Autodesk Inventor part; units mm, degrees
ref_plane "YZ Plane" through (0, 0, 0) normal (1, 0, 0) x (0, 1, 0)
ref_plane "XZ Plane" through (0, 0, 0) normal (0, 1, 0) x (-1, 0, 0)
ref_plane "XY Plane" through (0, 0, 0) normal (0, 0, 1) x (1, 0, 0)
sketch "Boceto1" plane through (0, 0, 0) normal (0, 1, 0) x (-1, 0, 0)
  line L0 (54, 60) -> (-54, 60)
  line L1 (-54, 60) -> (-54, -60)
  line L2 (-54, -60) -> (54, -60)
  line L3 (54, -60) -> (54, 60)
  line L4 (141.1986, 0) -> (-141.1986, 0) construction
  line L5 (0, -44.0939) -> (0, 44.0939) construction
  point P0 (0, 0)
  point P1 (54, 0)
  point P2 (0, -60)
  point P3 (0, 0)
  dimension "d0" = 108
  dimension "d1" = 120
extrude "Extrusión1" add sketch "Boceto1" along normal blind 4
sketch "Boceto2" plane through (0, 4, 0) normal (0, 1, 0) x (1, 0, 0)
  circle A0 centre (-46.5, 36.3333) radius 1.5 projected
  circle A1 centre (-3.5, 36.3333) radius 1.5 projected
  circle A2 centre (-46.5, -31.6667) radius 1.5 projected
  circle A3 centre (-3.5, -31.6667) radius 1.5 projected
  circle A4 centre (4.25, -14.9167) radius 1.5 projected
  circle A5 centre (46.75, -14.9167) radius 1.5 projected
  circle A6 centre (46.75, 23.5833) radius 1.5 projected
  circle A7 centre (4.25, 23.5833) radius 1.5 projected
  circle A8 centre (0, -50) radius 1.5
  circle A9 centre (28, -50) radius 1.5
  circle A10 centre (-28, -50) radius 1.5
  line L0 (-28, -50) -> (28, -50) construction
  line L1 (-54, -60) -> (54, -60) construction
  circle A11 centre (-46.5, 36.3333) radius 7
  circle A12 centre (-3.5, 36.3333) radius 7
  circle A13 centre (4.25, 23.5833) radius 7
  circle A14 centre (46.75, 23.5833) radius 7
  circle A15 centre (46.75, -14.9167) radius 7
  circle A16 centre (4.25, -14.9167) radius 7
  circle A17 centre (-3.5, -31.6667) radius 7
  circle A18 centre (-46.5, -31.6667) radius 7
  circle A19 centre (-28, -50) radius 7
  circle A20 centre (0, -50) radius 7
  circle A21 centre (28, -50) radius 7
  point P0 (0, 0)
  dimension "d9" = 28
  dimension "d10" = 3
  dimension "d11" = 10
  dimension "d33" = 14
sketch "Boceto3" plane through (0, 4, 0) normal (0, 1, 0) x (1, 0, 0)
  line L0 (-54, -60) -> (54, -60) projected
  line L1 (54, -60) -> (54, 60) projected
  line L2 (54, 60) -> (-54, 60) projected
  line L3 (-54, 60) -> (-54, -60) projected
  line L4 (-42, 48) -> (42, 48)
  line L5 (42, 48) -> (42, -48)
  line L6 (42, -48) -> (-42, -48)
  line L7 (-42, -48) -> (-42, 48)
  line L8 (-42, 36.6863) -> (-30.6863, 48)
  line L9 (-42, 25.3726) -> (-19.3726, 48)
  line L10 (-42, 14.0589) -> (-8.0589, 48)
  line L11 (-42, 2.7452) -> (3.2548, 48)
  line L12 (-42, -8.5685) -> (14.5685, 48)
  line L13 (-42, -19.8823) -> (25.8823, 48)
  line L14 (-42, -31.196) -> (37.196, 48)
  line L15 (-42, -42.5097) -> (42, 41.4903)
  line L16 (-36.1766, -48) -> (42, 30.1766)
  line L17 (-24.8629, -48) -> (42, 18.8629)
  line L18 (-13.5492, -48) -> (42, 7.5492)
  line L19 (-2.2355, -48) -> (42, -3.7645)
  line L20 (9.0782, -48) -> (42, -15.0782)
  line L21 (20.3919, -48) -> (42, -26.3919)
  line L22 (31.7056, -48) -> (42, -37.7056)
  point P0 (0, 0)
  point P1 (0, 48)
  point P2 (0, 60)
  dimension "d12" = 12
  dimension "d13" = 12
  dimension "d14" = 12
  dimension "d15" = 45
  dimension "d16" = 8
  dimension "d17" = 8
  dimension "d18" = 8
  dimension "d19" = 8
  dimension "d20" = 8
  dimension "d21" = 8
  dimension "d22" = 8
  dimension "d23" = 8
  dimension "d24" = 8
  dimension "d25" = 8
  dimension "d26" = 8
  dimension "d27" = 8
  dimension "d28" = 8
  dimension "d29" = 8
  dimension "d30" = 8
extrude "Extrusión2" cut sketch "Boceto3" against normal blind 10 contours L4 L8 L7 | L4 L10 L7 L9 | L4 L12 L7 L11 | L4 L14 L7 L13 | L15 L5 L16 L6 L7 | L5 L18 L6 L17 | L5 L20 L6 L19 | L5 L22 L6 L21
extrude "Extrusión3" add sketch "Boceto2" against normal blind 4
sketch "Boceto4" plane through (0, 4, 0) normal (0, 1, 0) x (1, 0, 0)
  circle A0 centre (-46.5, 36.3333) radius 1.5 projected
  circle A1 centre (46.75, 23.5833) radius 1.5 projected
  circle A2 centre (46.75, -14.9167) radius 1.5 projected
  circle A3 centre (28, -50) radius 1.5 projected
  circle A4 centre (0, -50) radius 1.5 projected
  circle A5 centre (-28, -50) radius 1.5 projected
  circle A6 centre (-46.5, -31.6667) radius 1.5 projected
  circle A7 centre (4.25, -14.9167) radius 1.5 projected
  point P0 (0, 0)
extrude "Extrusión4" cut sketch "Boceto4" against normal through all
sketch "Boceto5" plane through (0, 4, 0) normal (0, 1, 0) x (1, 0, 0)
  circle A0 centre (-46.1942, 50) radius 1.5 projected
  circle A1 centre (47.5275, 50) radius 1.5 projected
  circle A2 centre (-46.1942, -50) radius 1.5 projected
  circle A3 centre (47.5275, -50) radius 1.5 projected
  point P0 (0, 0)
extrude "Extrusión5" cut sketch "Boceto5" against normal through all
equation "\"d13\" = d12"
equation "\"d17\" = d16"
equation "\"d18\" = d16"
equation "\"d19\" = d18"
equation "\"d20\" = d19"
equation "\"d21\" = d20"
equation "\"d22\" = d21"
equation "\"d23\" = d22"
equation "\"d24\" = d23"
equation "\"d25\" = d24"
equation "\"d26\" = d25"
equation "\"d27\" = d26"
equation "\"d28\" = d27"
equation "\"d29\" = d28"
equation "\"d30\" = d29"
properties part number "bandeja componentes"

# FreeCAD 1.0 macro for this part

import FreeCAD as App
import Part
import Sketcher
Q = App.Units.Quantity


def add_polygon(sketch, points):
    """Adds a closed chain of lines whose ends are joined by coincident constraints."""
    first, n = sketch.GeometryCount, len(points)
    for a, b in zip(points, points[1:] + points[:1]):
        sketch.addGeometry(Part.LineSegment(App.Vector(*a, 0), App.Vector(*b, 0)), False)
    for i in range(n):
        sketch.addConstraint(Sketcher.Constraint("Coincident", first + i, 2, first + (i + 1) % n, 1))

doc = App.newDocument("Part")
params = doc.addObject("Spreadsheet::Sheet", "Params")
for row, (alias, value) in enumerate([
    ("sketch1_width", "108 mm"),
    ("sketch1_height", "120 mm"),
    ("pad1_length", "4 mm"),
    ("sketch2_length", "16 mm"),
    ("sketch2_length2", "32 mm"),
    ("sketch2_length3", "64 mm"),
    ("sketch2_length4", "96 mm"),
    ("pocket1_length", "10 mm"),
    ("sketch3_diameter", "14 mm"),
    ("sketch3_diameter2", "3 mm"),
    ("pad2_length", "4 mm"),
    ("sketch4_diameter", "3 mm"),
    ("sketch5_diameter", "3 mm"),
], start=1):
    params.set(f"A{row}", alias)
    params.set(f"B{row}", "=" + value)
    params.setAlias(f"B{row}", alias)

body = doc.addObject("PartDesign::Body", "Body")

# Sketch on XZ plane
sketch1 = body.newObject("Sketcher::SketchObject", "Sketch")
sketch1.AttachmentSupport = (doc.getObject("XZ_Plane"), [""])
sketch1.MapMode = "FlatFace"
add_polygon(sketch1, [(-54, -60), (-54, 60), (54, 60), (54, -60)])  # lines 0-3
sketch1.addConstraint(Sketcher.Constraint("Vertical", 0))
sketch1.addConstraint(Sketcher.Constraint("Horizontal", 1))
sketch1.addConstraint(Sketcher.Constraint("Vertical", 2))
sketch1.addConstraint(Sketcher.Constraint("Horizontal", 3))
sketch1.addConstraint(Sketcher.Constraint("Symmetric", 0, 2, 2, 2, -1, 1))
sketch1.addConstraint(Sketcher.Constraint("DistanceX", 1, 1, 1, 2, Q("108 mm")))
sketch1.addConstraint(Sketcher.Constraint("DistanceY", 0, 1, 0, 2, Q("120 mm")))
sketch1.setExpression("Constraints[9]", "Params.sketch1_width")
sketch1.setExpression("Constraints[10]", "Params.sketch1_height")
pad1 = body.newObject("PartDesign::Pad", "Pad")
pad1.Profile = sketch1
pad1.setExpression("Length", "Params.pad1_length")
pad1.Reversed = True

# Sketch on XZ plane
sketch2 = body.newObject("Sketcher::SketchObject", "Sketch001")
sketch2.AttachmentSupport = (doc.getObject("XZ_Plane"), [""])
sketch2.MapMode = "FlatFace"
sketch2.AttachmentOffset = App.Placement(App.Vector(0, 0, -4), App.Rotation())
add_polygon(sketch2, [(-30.6863, -48), (-42, -48), (-42, -36.6863)])  # lines 0-2
add_polygon(sketch2, [(-8.0589, -48), (-19.3726, -48), (-42, -25.3726), (-42, -14.0589)])  # lines 3-6
add_polygon(sketch2, [(14.5685, -48), (3.2548, -48), (-42, -2.7452), (-42, 8.5685)])  # lines 7-10
add_polygon(sketch2, [(37.196, -48), (25.8823, -48), (-42, 19.8823), (-42, 31.196)])  # lines 11-14
add_polygon(sketch2, [(42, -41.4903), (-42, 42.5097), (-42, 48), (-36.1766, 48), (42, -30.1766)])  # lines 15-19
add_polygon(sketch2, [(42, -7.5492), (42, -18.8629), (-24.8629, 48), (-13.5492, 48)])  # lines 20-23
add_polygon(sketch2, [(42, 15.0782), (42, 3.7645), (-2.2355, 48), (9.0782, 48)])  # lines 24-27
add_polygon(sketch2, [(42, 37.7056), (42, 26.3919), (20.3919, 48), (31.7056, 48)])  # lines 28-31
sketch2.addConstraint(Sketcher.Constraint("Horizontal", 0))
sketch2.addConstraint(Sketcher.Constraint("Vertical", 1))
sketch2.addConstraint(Sketcher.Constraint("Horizontal", 3))
sketch2.addConstraint(Sketcher.Constraint("Vertical", 5))
sketch2.addConstraint(Sketcher.Constraint("Horizontal", 7))
sketch2.addConstraint(Sketcher.Constraint("Vertical", 9))
sketch2.addConstraint(Sketcher.Constraint("Horizontal", 11))
sketch2.addConstraint(Sketcher.Constraint("Vertical", 13))
sketch2.addConstraint(Sketcher.Constraint("Vertical", 16))
sketch2.addConstraint(Sketcher.Constraint("Horizontal", 17))
sketch2.addConstraint(Sketcher.Constraint("Vertical", 19))
sketch2.addConstraint(Sketcher.Constraint("Vertical", 20))
sketch2.addConstraint(Sketcher.Constraint("Horizontal", 22))
sketch2.addConstraint(Sketcher.Constraint("Vertical", 24))
sketch2.addConstraint(Sketcher.Constraint("Horizontal", 26))
sketch2.addConstraint(Sketcher.Constraint("Vertical", 28))
sketch2.addConstraint(Sketcher.Constraint("Horizontal", 30))
sketch2.addConstraint(Sketcher.Constraint("Symmetric", 0, 2, 16, 2, -1))
sketch2.addConstraint(Sketcher.Constraint("Parallel", 2, 4))
sketch2.addConstraint(Sketcher.Constraint("Parallel", 4, 6))
sketch2.addConstraint(Sketcher.Constraint("Parallel", 6, 8))
sketch2.addConstraint(Sketcher.Constraint("Parallel", 8, 10))
sketch2.addConstraint(Sketcher.Constraint("Parallel", 10, 12))
sketch2.addConstraint(Sketcher.Constraint("Parallel", 12, 14))
sketch2.addConstraint(Sketcher.Constraint("Parallel", 14, 15))
sketch2.addConstraint(Sketcher.Constraint("Parallel", 15, 18))
sketch2.addConstraint(Sketcher.Constraint("Parallel", 18, 21))
sketch2.addConstraint(Sketcher.Constraint("Parallel", 21, 23))
sketch2.addConstraint(Sketcher.Constraint("Parallel", 23, 25))
sketch2.addConstraint(Sketcher.Constraint("Parallel", 25, 27))
sketch2.addConstraint(Sketcher.Constraint("Parallel", 27, 29))
sketch2.addConstraint(Sketcher.Constraint("Parallel", 29, 31))
sketch2.addConstraint(Sketcher.Constraint("Horizontal", 2, 2, 3, 2))
sketch2.addConstraint(Sketcher.Constraint("Horizontal", 6, 2, 7, 2))
sketch2.addConstraint(Sketcher.Constraint("Horizontal", 10, 2, 11, 2))
sketch2.addConstraint(Sketcher.Constraint("Horizontal", 17, 2, 21, 2))
sketch2.addConstraint(Sketcher.Constraint("Horizontal", 22, 2, 25, 2))
sketch2.addConstraint(Sketcher.Constraint("Horizontal", 26, 2, 29, 2))
sketch2.addConstraint(Sketcher.Constraint("Vertical", 1, 2, 4, 2))
sketch2.addConstraint(Sketcher.Constraint("Vertical", 5, 2, 8, 2))
sketch2.addConstraint(Sketcher.Constraint("Vertical", 9, 2, 12, 2))
sketch2.addConstraint(Sketcher.Constraint("Vertical", 19, 2, 20, 2))
sketch2.addConstraint(Sketcher.Constraint("Vertical", 23, 2, 24, 2))
sketch2.addConstraint(Sketcher.Constraint("Vertical", 27, 2, 28, 2))
sketch2.addConstraint(Sketcher.Constraint("Equal", 0, 3))
sketch2.addConstraint(Sketcher.Constraint("Equal", 3, 7))
sketch2.addConstraint(Sketcher.Constraint("Equal", 7, 11))
sketch2.addConstraint(Sketcher.Constraint("Equal", 11, 22))
sketch2.addConstraint(Sketcher.Constraint("Equal", 22, 26))
sketch2.addConstraint(Sketcher.Constraint("Equal", 26, 30))
sketch2.addConstraint(Sketcher.Constraint("Equal", 30, 1))
sketch2.addConstraint(Sketcher.Constraint("Equal", 13, 19))
sketch2.addConstraint(Sketcher.Constraint("Distance", 2, Q("16 mm")))
sketch2.addConstraint(Sketcher.Constraint("Distance", 4, Q("32 mm")))
sketch2.addConstraint(Sketcher.Constraint("Distance", 8, Q("64 mm")))
sketch2.addConstraint(Sketcher.Constraint("Distance", 12, Q("96 mm")))
sketch2.addConstraint(Sketcher.Constraint("DistanceX", 0, 2, -1, 1, Q("42 mm")))
sketch2.addConstraint(Sketcher.Constraint("DistanceY", 0, 2, -1, 1, Q("48 mm")))
sketch2.addConstraint(Sketcher.Constraint("DistanceX", -1, 1, 18, 2, Q("42 mm")))
sketch2.addConstraint(Sketcher.Constraint("DistanceX", 17, 1, 17, 2, Q("5.8234 mm")))
sketch2.addConstraint(Sketcher.Constraint("DistanceY", 20, 2, -1, 1, Q("18.863 mm")))
sketch2.addConstraint(Sketcher.Constraint("DistanceY", -1, 1, 28, 2, Q("26.392 mm")))
sketch2.addConstraint(Sketcher.Constraint("DistanceY", 18, 2, 24, 2, Q("33.941 mm")))
sketch2.setExpression("Constraints[84]", "Params.sketch2_length")
sketch2.setExpression("Constraints[85]", "Params.sketch2_length2")
sketch2.setExpression("Constraints[86]", "Params.sketch2_length3")
sketch2.setExpression("Constraints[87]", "Params.sketch2_length4")
pocket1 = body.newObject("PartDesign::Pocket", "Pocket")
pocket1.Profile = sketch2
pocket1.setExpression("Length", "Params.pocket1_length")
pocket1.Reversed = True

# Sketch on XZ plane
sketch3 = body.newObject("Sketcher::SketchObject", "Sketch002")
sketch3.AttachmentSupport = (doc.getObject("XZ_Plane"), [""])
sketch3.MapMode = "FlatFace"
sketch3.AttachmentOffset = App.Placement(App.Vector(0, 0, -4), App.Rotation())
sketch3.addGeometry(Part.Circle(App.Vector(-46.5, -36.3333, 0), App.Vector(0, 0, 1), 7), False)
sketch3.addGeometry(Part.Circle(App.Vector(-46.5, -36.3333, 0), App.Vector(0, 0, 1), 1.5), False)
sketch3.addGeometry(Part.Circle(App.Vector(-3.5, -36.3333, 0), App.Vector(0, 0, 1), 7), False)
sketch3.addGeometry(Part.Circle(App.Vector(-3.5, -36.3333, 0), App.Vector(0, 0, 1), 1.5), False)
sketch3.addGeometry(Part.Circle(App.Vector(4.25, -23.5833, 0), App.Vector(0, 0, 1), 7), False)
sketch3.addGeometry(Part.Circle(App.Vector(4.25, -23.5833, 0), App.Vector(0, 0, 1), 1.5), False)
sketch3.addGeometry(Part.Circle(App.Vector(46.75, -23.5833, 0), App.Vector(0, 0, 1), 7), False)
sketch3.addGeometry(Part.Circle(App.Vector(46.75, -23.5833, 0), App.Vector(0, 0, 1), 1.5), False)
sketch3.addGeometry(Part.Circle(App.Vector(46.75, 14.9167, 0), App.Vector(0, 0, 1), 7), False)
sketch3.addGeometry(Part.Circle(App.Vector(46.75, 14.9167, 0), App.Vector(0, 0, 1), 1.5), False)
sketch3.addGeometry(Part.Circle(App.Vector(4.25, 14.9167, 0), App.Vector(0, 0, 1), 7), False)
sketch3.addGeometry(Part.Circle(App.Vector(4.25, 14.9167, 0), App.Vector(0, 0, 1), 1.5), False)
sketch3.addGeometry(Part.Circle(App.Vector(-3.5, 31.6667, 0), App.Vector(0, 0, 1), 7), False)
sketch3.addGeometry(Part.Circle(App.Vector(-3.5, 31.6667, 0), App.Vector(0, 0, 1), 1.5), False)
sketch3.addGeometry(Part.Circle(App.Vector(-46.5, 31.6667, 0), App.Vector(0, 0, 1), 7), False)
sketch3.addGeometry(Part.Circle(App.Vector(-46.5, 31.6667, 0), App.Vector(0, 0, 1), 1.5), False)
sketch3.addGeometry(Part.Circle(App.Vector(-28, 50, 0), App.Vector(0, 0, 1), 7), False)
sketch3.addGeometry(Part.Circle(App.Vector(-28, 50, 0), App.Vector(0, 0, 1), 1.5), False)
sketch3.addGeometry(Part.Circle(App.Vector(0, 50, 0), App.Vector(0, 0, 1), 7), False)
sketch3.addGeometry(Part.Circle(App.Vector(0, 50, 0), App.Vector(0, 0, 1), 1.5), False)
sketch3.addGeometry(Part.Circle(App.Vector(28, 50, 0), App.Vector(0, 0, 1), 7), False)
sketch3.addGeometry(Part.Circle(App.Vector(28, 50, 0), App.Vector(0, 0, 1), 1.5), False)
sketch3.addConstraint(Sketcher.Constraint("Coincident", 1, 3, 0, 3))
sketch3.addConstraint(Sketcher.Constraint("Coincident", 3, 3, 2, 3))
sketch3.addConstraint(Sketcher.Constraint("Coincident", 5, 3, 4, 3))
sketch3.addConstraint(Sketcher.Constraint("Coincident", 7, 3, 6, 3))
sketch3.addConstraint(Sketcher.Constraint("Coincident", 9, 3, 8, 3))
sketch3.addConstraint(Sketcher.Constraint("Coincident", 11, 3, 10, 3))
sketch3.addConstraint(Sketcher.Constraint("Coincident", 13, 3, 12, 3))
sketch3.addConstraint(Sketcher.Constraint("Coincident", 15, 3, 14, 3))
sketch3.addConstraint(Sketcher.Constraint("Coincident", 17, 3, 16, 3))
sketch3.addConstraint(Sketcher.Constraint("Coincident", 19, 3, 18, 3))
sketch3.addConstraint(Sketcher.Constraint("Coincident", 21, 3, 20, 3))
sketch3.addConstraint(Sketcher.Constraint("Equal", 0, 2))
sketch3.addConstraint(Sketcher.Constraint("Equal", 1, 3))
sketch3.addConstraint(Sketcher.Constraint("Equal", 2, 4))
sketch3.addConstraint(Sketcher.Constraint("Equal", 3, 5))
sketch3.addConstraint(Sketcher.Constraint("Equal", 4, 6))
sketch3.addConstraint(Sketcher.Constraint("Equal", 5, 7))
sketch3.addConstraint(Sketcher.Constraint("Equal", 6, 8))
sketch3.addConstraint(Sketcher.Constraint("Equal", 7, 9))
sketch3.addConstraint(Sketcher.Constraint("Equal", 8, 10))
sketch3.addConstraint(Sketcher.Constraint("Equal", 9, 11))
sketch3.addConstraint(Sketcher.Constraint("Equal", 10, 12))
sketch3.addConstraint(Sketcher.Constraint("Equal", 11, 13))
sketch3.addConstraint(Sketcher.Constraint("Equal", 12, 14))
sketch3.addConstraint(Sketcher.Constraint("Equal", 13, 15))
sketch3.addConstraint(Sketcher.Constraint("Equal", 14, 16))
sketch3.addConstraint(Sketcher.Constraint("Equal", 15, 17))
sketch3.addConstraint(Sketcher.Constraint("Equal", 16, 18))
sketch3.addConstraint(Sketcher.Constraint("Equal", 17, 19))
sketch3.addConstraint(Sketcher.Constraint("Equal", 18, 20))
sketch3.addConstraint(Sketcher.Constraint("Equal", 19, 21))
sketch3.addConstraint(Sketcher.Constraint("Symmetric", 16, 3, 20, 3, -2))
sketch3.addConstraint(Sketcher.Constraint("PointOnObject", 18, 3, -2))
sketch3.addConstraint(Sketcher.Constraint("Horizontal", 1, 3, 2, 3))
sketch3.addConstraint(Sketcher.Constraint("Horizontal", 5, 3, 6, 3))
sketch3.addConstraint(Sketcher.Constraint("Horizontal", 9, 3, 10, 3))
sketch3.addConstraint(Sketcher.Constraint("Horizontal", 13, 3, 14, 3))
sketch3.addConstraint(Sketcher.Constraint("Horizontal", 17, 3, 18, 3))
sketch3.addConstraint(Sketcher.Constraint("Vertical", 7, 3, 8, 3))
sketch3.addConstraint(Sketcher.Constraint("Vertical", 5, 3, 10, 3))
sketch3.addConstraint(Sketcher.Constraint("Vertical", 3, 3, 12, 3))
sketch3.addConstraint(Sketcher.Constraint("Vertical", 1, 3, 14, 3))
sketch3.addConstraint(Sketcher.Constraint("Diameter", 0, Q("14 mm")))
sketch3.addConstraint(Sketcher.Constraint("Diameter", 1, Q("3 mm")))
sketch3.addConstraint(Sketcher.Constraint("DistanceX", 16, 3, -1, 1, Q("28 mm")))
sketch3.addConstraint(Sketcher.Constraint("DistanceY", -1, 1, 16, 3, Q("50 mm")))
sketch3.addConstraint(Sketcher.Constraint("DistanceX", 0, 3, 2, 3, Q("43 mm")))
sketch3.addConstraint(Sketcher.Constraint("DistanceY", 0, 3, 14, 3, Q("68 mm")))
sketch3.addConstraint(Sketcher.Constraint("DistanceX", 0, 3, -1, 1, Q("46.5 mm")))
sketch3.addConstraint(Sketcher.Constraint("DistanceX", 4, 3, 6, 3, Q("42.5 mm")))
sketch3.addConstraint(Sketcher.Constraint("DistanceY", 6, 3, 8, 3, Q("38.5 mm")))
sketch3.addConstraint(Sketcher.Constraint("DistanceX", -1, 1, 4, 3, Q("4.25 mm")))
sketch3.addConstraint(Sketcher.Constraint("DistanceY", 2, 3, 4, 3, Q("12.75 mm")))
sketch3.addConstraint(Sketcher.Constraint("DistanceY", 0, 3, -1, 1, Q("36.3333 mm")))
sketch3.setExpression("Constraints[42]", "Params.sketch3_diameter")
sketch3.setExpression("Constraints[43]", "Params.sketch3_diameter2")
pad2 = body.newObject("PartDesign::Pad", "Pad001")
pad2.Profile = sketch3
pad2.setExpression("Length", "Params.pad2_length")

# Sketch on XZ plane
sketch4 = body.newObject("Sketcher::SketchObject", "Sketch003")
sketch4.AttachmentSupport = (doc.getObject("XZ_Plane"), [""])
sketch4.MapMode = "FlatFace"
sketch4.AttachmentOffset = App.Placement(App.Vector(0, 0, -4), App.Rotation())
sketch4.addGeometry(Part.Circle(App.Vector(-46.5, -36.3333, 0), App.Vector(0, 0, 1), 1.5), False)
sketch4.addGeometry(Part.Circle(App.Vector(46.75, -23.5833, 0), App.Vector(0, 0, 1), 1.5), False)
sketch4.addGeometry(Part.Circle(App.Vector(46.75, 14.9167, 0), App.Vector(0, 0, 1), 1.5), False)
sketch4.addGeometry(Part.Circle(App.Vector(28, 50, 0), App.Vector(0, 0, 1), 1.5), False)
sketch4.addGeometry(Part.Circle(App.Vector(0, 50, 0), App.Vector(0, 0, 1), 1.5), False)
sketch4.addGeometry(Part.Circle(App.Vector(-28, 50, 0), App.Vector(0, 0, 1), 1.5), False)
sketch4.addGeometry(Part.Circle(App.Vector(-46.5, 31.6667, 0), App.Vector(0, 0, 1), 1.5), False)
sketch4.addGeometry(Part.Circle(App.Vector(4.25, 14.9167, 0), App.Vector(0, 0, 1), 1.5), False)
sketch4.addConstraint(Sketcher.Constraint("Equal", 0, 1))
sketch4.addConstraint(Sketcher.Constraint("Equal", 1, 2))
sketch4.addConstraint(Sketcher.Constraint("Equal", 2, 3))
sketch4.addConstraint(Sketcher.Constraint("Equal", 3, 4))
sketch4.addConstraint(Sketcher.Constraint("Equal", 4, 5))
sketch4.addConstraint(Sketcher.Constraint("Equal", 5, 6))
sketch4.addConstraint(Sketcher.Constraint("Equal", 6, 7))
sketch4.addConstraint(Sketcher.Constraint("Symmetric", 3, 3, 5, 3, -2))
sketch4.addConstraint(Sketcher.Constraint("PointOnObject", 4, 3, -2))
sketch4.addConstraint(Sketcher.Constraint("Horizontal", 3, 3, 4, 3))
sketch4.addConstraint(Sketcher.Constraint("Horizontal", 2, 3, 7, 3))
sketch4.addConstraint(Sketcher.Constraint("Vertical", 1, 3, 2, 3))
sketch4.addConstraint(Sketcher.Constraint("Vertical", 0, 3, 6, 3))
sketch4.addConstraint(Sketcher.Constraint("Diameter", 0, Q("3 mm")))
sketch4.addConstraint(Sketcher.Constraint("DistanceX", -1, 1, 3, 3, Q("28 mm")))
sketch4.addConstraint(Sketcher.Constraint("DistanceY", -1, 1, 3, 3, Q("50 mm")))
sketch4.addConstraint(Sketcher.Constraint("DistanceY", 0, 3, 6, 3, Q("68 mm")))
sketch4.addConstraint(Sketcher.Constraint("DistanceX", 0, 3, -1, 1, Q("46.5 mm")))
sketch4.addConstraint(Sketcher.Constraint("DistanceY", 1, 3, 2, 3, Q("38.5 mm")))
sketch4.addConstraint(Sketcher.Constraint("DistanceX", 7, 3, 2, 3, Q("42.5 mm")))
sketch4.addConstraint(Sketcher.Constraint("DistanceX", -1, 1, 1, 3, Q("46.75 mm")))
sketch4.addConstraint(Sketcher.Constraint("DistanceY", 0, 3, 1, 3, Q("12.75 mm")))
sketch4.addConstraint(Sketcher.Constraint("DistanceY", 0, 3, -1, 1, Q("36.3333 mm")))
sketch4.setExpression("Constraints[13]", "Params.sketch4_diameter")
pocket2 = body.newObject("PartDesign::Pocket", "Pocket001")
pocket2.Profile = sketch4
pocket2.Type = "ThroughAll"
pocket2.Reversed = True

# Sketch on XZ plane
sketch5 = body.newObject("Sketcher::SketchObject", "Sketch004")
sketch5.AttachmentSupport = (doc.getObject("XZ_Plane"), [""])
sketch5.MapMode = "FlatFace"
sketch5.AttachmentOffset = App.Placement(App.Vector(0, 0, -4), App.Rotation())
sketch5.addGeometry(Part.Circle(App.Vector(-46.1942, -50, 0), App.Vector(0, 0, 1), 1.5), False)
sketch5.addGeometry(Part.Circle(App.Vector(47.5275, -50, 0), App.Vector(0, 0, 1), 1.5), False)
sketch5.addGeometry(Part.Circle(App.Vector(-46.1942, 50, 0), App.Vector(0, 0, 1), 1.5), False)
sketch5.addGeometry(Part.Circle(App.Vector(47.5275, 50, 0), App.Vector(0, 0, 1), 1.5), False)
sketch5.addConstraint(Sketcher.Constraint("Equal", 0, 1))
sketch5.addConstraint(Sketcher.Constraint("Equal", 1, 2))
sketch5.addConstraint(Sketcher.Constraint("Equal", 2, 3))
sketch5.addConstraint(Sketcher.Constraint("Symmetric", 0, 3, 2, 3, -1))
sketch5.addConstraint(Sketcher.Constraint("Symmetric", 1, 3, 3, 3, -1))
sketch5.addConstraint(Sketcher.Constraint("Horizontal", 0, 3, 1, 3))
sketch5.addConstraint(Sketcher.Constraint("Diameter", 0, Q("3 mm")))
sketch5.addConstraint(Sketcher.Constraint("DistanceY", 0, 3, -1, 1, Q("50 mm")))
sketch5.addConstraint(Sketcher.Constraint("DistanceX", 0, 3, -1, 1, Q("46.1942 mm")))
sketch5.addConstraint(Sketcher.Constraint("DistanceX", -1, 1, 1, 3, Q("47.5275 mm")))
sketch5.setExpression("Constraints[6]", "Params.sketch5_diameter")
pocket3 = body.newObject("PartDesign::Pocket", "Pocket002")
pocket3.Profile = sketch5
pocket3.Type = "ThroughAll"
pocket3.Reversed = True

doc.recompute()
